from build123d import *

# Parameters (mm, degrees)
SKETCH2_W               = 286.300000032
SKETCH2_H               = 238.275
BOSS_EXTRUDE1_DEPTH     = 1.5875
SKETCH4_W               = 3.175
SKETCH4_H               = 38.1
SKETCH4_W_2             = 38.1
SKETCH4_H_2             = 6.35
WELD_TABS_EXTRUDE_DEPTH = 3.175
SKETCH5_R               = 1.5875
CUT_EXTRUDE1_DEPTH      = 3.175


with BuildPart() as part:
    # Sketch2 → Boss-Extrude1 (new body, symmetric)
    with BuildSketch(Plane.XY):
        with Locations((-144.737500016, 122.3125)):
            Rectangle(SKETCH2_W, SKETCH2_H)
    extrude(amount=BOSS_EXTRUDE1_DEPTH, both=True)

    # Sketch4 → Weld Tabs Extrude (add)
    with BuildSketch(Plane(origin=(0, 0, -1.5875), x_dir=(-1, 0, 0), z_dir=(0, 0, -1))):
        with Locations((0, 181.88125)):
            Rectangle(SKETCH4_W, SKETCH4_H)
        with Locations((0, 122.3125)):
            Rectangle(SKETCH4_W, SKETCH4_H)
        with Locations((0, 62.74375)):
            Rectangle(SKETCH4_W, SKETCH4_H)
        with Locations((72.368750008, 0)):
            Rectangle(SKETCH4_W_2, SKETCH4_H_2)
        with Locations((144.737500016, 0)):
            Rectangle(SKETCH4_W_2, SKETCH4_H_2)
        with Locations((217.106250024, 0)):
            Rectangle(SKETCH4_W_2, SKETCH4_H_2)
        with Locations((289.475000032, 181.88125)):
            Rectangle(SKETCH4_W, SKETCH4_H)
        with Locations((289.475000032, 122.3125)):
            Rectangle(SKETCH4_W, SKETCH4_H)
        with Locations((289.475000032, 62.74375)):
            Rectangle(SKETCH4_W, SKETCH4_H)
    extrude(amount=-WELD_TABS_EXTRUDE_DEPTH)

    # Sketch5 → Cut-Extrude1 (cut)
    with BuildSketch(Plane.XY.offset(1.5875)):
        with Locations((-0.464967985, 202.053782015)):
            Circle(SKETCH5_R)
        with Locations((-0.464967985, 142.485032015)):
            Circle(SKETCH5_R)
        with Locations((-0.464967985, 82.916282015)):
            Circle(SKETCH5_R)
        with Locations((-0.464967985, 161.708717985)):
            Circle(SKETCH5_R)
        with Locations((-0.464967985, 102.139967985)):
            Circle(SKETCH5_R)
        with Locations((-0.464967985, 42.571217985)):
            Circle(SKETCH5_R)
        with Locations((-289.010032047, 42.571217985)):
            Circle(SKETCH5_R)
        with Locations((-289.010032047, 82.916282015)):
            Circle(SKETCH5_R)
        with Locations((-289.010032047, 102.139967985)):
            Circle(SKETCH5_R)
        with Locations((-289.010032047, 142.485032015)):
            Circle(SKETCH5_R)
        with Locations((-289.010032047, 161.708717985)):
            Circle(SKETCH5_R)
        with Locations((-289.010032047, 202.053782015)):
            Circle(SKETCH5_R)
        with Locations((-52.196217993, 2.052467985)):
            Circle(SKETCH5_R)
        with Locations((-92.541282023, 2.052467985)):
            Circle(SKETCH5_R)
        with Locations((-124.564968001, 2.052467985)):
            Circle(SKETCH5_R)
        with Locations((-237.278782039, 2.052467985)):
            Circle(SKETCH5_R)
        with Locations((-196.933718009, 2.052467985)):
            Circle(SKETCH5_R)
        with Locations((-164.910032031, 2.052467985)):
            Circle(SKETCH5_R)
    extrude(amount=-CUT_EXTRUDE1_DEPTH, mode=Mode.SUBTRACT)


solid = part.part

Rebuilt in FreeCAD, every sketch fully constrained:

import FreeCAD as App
import Part
import Sketcher

V = App.Vector
Q = App.Units.Quantity


def add_polygon(sketch, points):
    """Adds a closed chain of lines whose ends are joined by coincident constraints."""
    first, n = sketch.GeometryCount, len(points)
    for a, b in zip(points, points[1:] + points[:1]):
        sketch.addGeometry(Part.LineSegment(App.Vector(*a, 0), App.Vector(*b, 0)), False)
    for i in range(n):
        sketch.addConstraint(Sketcher.Constraint("Coincident", first + i, 2, first + (i + 1) % n, 1))

doc = App.newDocument("Part")
body = doc.addObject("PartDesign::Body", "Body")

# Sketch on XY plane
sketch1 = body.newObject("Sketcher::SketchObject", "Sketch")
sketch1.AttachmentSupport = (doc.getObject("XY_Plane"), [""])
sketch1.MapMode = "FlatFace"
add_polygon(sketch1, [(-288, 241), (-288, 3), (-2, 3), (-2, 241)])  # lines 0-3
sketch1.addConstraint(Sketcher.Constraint("Vertical", 0))
sketch1.addConstraint(Sketcher.Constraint("Horizontal", 1))
sketch1.addConstraint(Sketcher.Constraint("Vertical", 2))
sketch1.addConstraint(Sketcher.Constraint("Horizontal", 3))
sketch1.addConstraint(Sketcher.Constraint("DistanceY", -1, 1, 0, 2, Q("0.125 in")))
sketch1.addConstraint(Sketcher.Constraint("DistanceX", 1, 2, -1, 1, Q("0.0625 in")))
sketch1.addConstraint(Sketcher.Constraint("DistanceX", 1, 1, 1, 2, Q("286.3 mm")))
sketch1.addConstraint(Sketcher.Constraint("DistanceY", 0, 2, 0, 1, Q("238.275 mm")))
pad1 = body.newObject("PartDesign::Pad", "Pad")
pad1.Profile = sketch1
pad1.Length = Q("0.125 in")
pad1.Midplane = True

# Sketch on XY plane
sketch2 = body.newObject("Sketcher::SketchObject", "Sketch001")
sketch2.AttachmentSupport = (doc.getObject("XY_Plane"), [""])
sketch2.MapMode = "FlatFace"
sketch2.AttachmentOffset = App.Placement(V(0, 0, -0.0625 * 25.4), App.Rotation())
add_polygon(sketch2, [(1.6, 200.9), (1.6, 162.8), (-1.6, 162.8), (-1.6, 200.9)])  # lines 0-3
add_polygon(sketch2, [(1.6, 141.4), (1.6, 103.3), (-1.6, 103.3), (-1.6, 141.4)])  # lines 4-7
add_polygon(sketch2, [(1.6, 81.8), (1.6, 43.7), (-1.6, 43.7), (-1.6, 81.8)])  # lines 8-11
add_polygon(sketch2, [(-53.3, 3.2), (-53.3, -3.2), (-91.4, -3.2), (-91.4, 3.2)])  # lines 12-15
add_polygon(sketch2, [(-125.7, 3.2), (-125.7, -3.2), (-163.8, -3.2), (-163.8, 3.2)])  # lines 16-19
add_polygon(sketch2, [(-198.1, 3.2), (-198.1, -3.2), (-236.2, -3.2), (-236.2, 3.2)])  # lines 20-23
add_polygon(sketch2, [(-287.9, 200.9), (-287.9, 162.8), (-291.1, 162.8), (-291.1, 200.9)])  # lines 24-27
add_polygon(sketch2, [(-287.9, 141.4), (-287.9, 103.3), (-291.1, 103.3), (-291.1, 141.4)])  # lines 28-31
add_polygon(sketch2, [(-287.9, 81.8), (-287.9, 43.7), (-291.1, 43.7), (-291.1, 81.8)])  # lines 32-35
sketch2.addConstraint(Sketcher.Constraint("Vertical", 0))
sketch2.addConstraint(Sketcher.Constraint("Horizontal", 1))
sketch2.addConstraint(Sketcher.Constraint("Vertical", 2))
sketch2.addConstraint(Sketcher.Constraint("Horizontal", 3))
sketch2.addConstraint(Sketcher.Constraint("Vertical", 4))
sketch2.addConstraint(Sketcher.Constraint("Horizontal", 5))
sketch2.addConstraint(Sketcher.Constraint("Vertical", 6))
sketch2.addConstraint(Sketcher.Constraint("Horizontal", 7))
sketch2.addConstraint(Sketcher.Constraint("Vertical", 8))
sketch2.addConstraint(Sketcher.Constraint("Horizontal", 9))
sketch2.addConstraint(Sketcher.Constraint("Vertical", 10))
sketch2.addConstraint(Sketcher.Constraint("Horizontal", 11))
sketch2.addConstraint(Sketcher.Constraint("Vertical", 12))
sketch2.addConstraint(Sketcher.Constraint("Horizontal", 13))
sketch2.addConstraint(Sketcher.Constraint("Vertical", 14))
sketch2.addConstraint(Sketcher.Constraint("Horizontal", 15))
sketch2.addConstraint(Sketcher.Constraint("Vertical", 16))
sketch2.addConstraint(Sketcher.Constraint("Horizontal", 17))
sketch2.addConstraint(Sketcher.Constraint("Vertical", 18))
sketch2.addConstraint(Sketcher.Constraint("Horizontal", 19))
sketch2.addConstraint(Sketcher.Constraint("Vertical", 20))
sketch2.addConstraint(Sketcher.Constraint("Horizontal", 21))
sketch2.addConstraint(Sketcher.Constraint("Vertical", 22))
sketch2.addConstraint(Sketcher.Constraint("Horizontal", 23))
sketch2.addConstraint(Sketcher.Constraint("Vertical", 24))
sketch2.addConstraint(Sketcher.Constraint("Horizontal", 25))
sketch2.addConstraint(Sketcher.Constraint("Vertical", 26))
sketch2.addConstraint(Sketcher.Constraint("Horizontal", 27))
sketch2.addConstraint(Sketcher.Constraint("Vertical", 28))
sketch2.addConstraint(Sketcher.Constraint("Horizontal", 29))
sketch2.addConstraint(Sketcher.Constraint("Vertical", 30))
sketch2.addConstraint(Sketcher.Constraint("Horizontal", 31))
sketch2.addConstraint(Sketcher.Constraint("Vertical", 32))
sketch2.addConstraint(Sketcher.Constraint("Horizontal", 33))
sketch2.addConstraint(Sketcher.Constraint("Vertical", 34))
sketch2.addConstraint(Sketcher.Constraint("Horizontal", 35))
sketch2.addConstraint(Sketcher.Constraint("Horizontal", 13, 2, 16, 2))
sketch2.addConstraint(Sketcher.Constraint("Horizontal", 15, 2, 18, 2))
sketch2.addConstraint(Sketcher.Constraint("Horizontal", 17, 2, 20, 2))
sketch2.addConstraint(Sketcher.Constraint("Horizontal", 19, 2, 22, 2))
sketch2.addConstraint(Sketcher.Constraint("Horizontal", 1, 2, 24, 2))
sketch2.addConstraint(Sketcher.Constraint("Horizontal", 3, 2, 26, 2))
sketch2.addConstraint(Sketcher.Constraint("Horizontal", 5, 2, 28, 2))
sketch2.addConstraint(Sketcher.Constraint("Horizontal", 7, 2, 30, 2))
sketch2.addConstraint(Sketcher.Constraint("Horizontal", 9, 2, 32, 2))
sketch2.addConstraint(Sketcher.Constraint("Horizontal", 11, 2, 34, 2))
sketch2.addConstraint(Sketcher.Constraint("Vertical", 3, 2, 4, 2))
sketch2.addConstraint(Sketcher.Constraint("Vertical", 2, 2, 5, 2))
sketch2.addConstraint(Sketcher.Constraint("Vertical", 7, 2, 8, 2))
sketch2.addConstraint(Sketcher.Constraint("Vertical", 6, 2, 9, 2))
sketch2.addConstraint(Sketcher.Constraint("Vertical", 27, 2, 28, 2))
sketch2.addConstraint(Sketcher.Constraint("Vertical", 26, 2, 29, 2))
sketch2.addConstraint(Sketcher.Constraint("Vertical", 31, 2, 32, 2))
sketch2.addConstraint(Sketcher.Constraint("Vertical", 30, 2, 33, 2))
sketch2.addConstraint(Sketcher.Constraint("Equal", 15, 17))
sketch2.addConstraint(Sketcher.Constraint("Equal", 19, 21))
sketch2.addConstraint(Sketcher.Constraint("Equal", 11, 25))
sketch2.addConstraint(Sketcher.Constraint("Equal", 23, 0))
sketch2.addConstraint(Sketcher.Constraint("Equal", 2, 4))
sketch2.addConstraint(Sketcher.Constraint("Equal", 6, 8))
sketch2.addConstraint(Sketcher.Constraint("DistanceX", 13, 2, 13, 1, Q("1.5 in")))
sketch2.addConstraint(Sketcher.Constraint("DistanceY", 12, 2, 12, 1, Q("0.25 in")))
sketch2.addConstraint(Sketcher.Constraint("DistanceX", 1, 2, 1, 1, Q("0.125 in")))
sketch2.addConstraint(Sketcher.Constraint("DistanceX", -1, 1, 0, 2, Q("0.0625 in")))
sketch2.addConstraint(Sketcher.Constraint("DistanceY", 12, 2, -1, 1, Q("0.125 in")))
sketch2.addConstraint(Sketcher.Constraint("DistanceY", -1, 1, 4, 2, Q("103.2625 mm")))
sketch2.addConstraint(Sketcher.Constraint("DistanceX", 16, 2, -1, 1, Q("125.6875 mm")))
sketch2.addConstraint(Sketcher.Constraint("DistanceX", 24, 2, -1, 1, Q("287.8875 mm")))
sketch2.addConstraint(Sketcher.Constraint("DistanceY", 8, 2, 0, 2, Q("119.1375 mm")))
sketch2.addConstraint(Sketcher.Constraint("DistanceX", 20, 2, 13, 2, Q("106.6375 mm")))
sketch2.addConstraint(Sketcher.Constraint("DistanceY", -1, 1, 0, 2, Q("162.83125 mm")))
sketch2.addConstraint(Sketcher.Constraint("DistanceX", 12, 2, -1, 1, Q("53.31875 mm")))
pad2 = body.newObject("PartDesign::Pad", "Pad001")
pad2.Profile = sketch2
pad2.Length = Q("0.125 in")

# Sketch on XY plane
sketch3 = body.newObject("Sketcher::SketchObject", "Sketch002")
sketch3.AttachmentSupport = (doc.getObject("XY_Plane"), [""])
sketch3.MapMode = "FlatFace"
sketch3.AttachmentOffset = App.Placement(V(0, 0, 0.0625 * 25.4), App.Rotation())
sketch3.addGeometry(Part.Circle(V(-0.5, 202.1, 0), V(0, 0, 1), 1.6), False)
sketch3.addGeometry(Part.Circle(V(-0.5, 142.5, 0), V(0, 0, 1), 1.6), False)
sketch3.addGeometry(Part.Circle(V(-0.5, 82.9, 0), V(0, 0, 1), 1.6), False)
sketch3.addGeometry(Part.Circle(V(-0.5, 161.7, 0), V(0, 0, 1), 1.6), False)
sketch3.addGeometry(Part.Circle(V(-0.5, 102.1, 0), V(0, 0, 1), 1.6), False)
sketch3.addGeometry(Part.Circle(V(-0.5, 42.6, 0), V(0, 0, 1), 1.6), False)
sketch3.addGeometry(Part.Circle(V(-289, 42.6, 0), V(0, 0, 1), 1.6), False)
sketch3.addGeometry(Part.Circle(V(-289, 82.9, 0), V(0, 0, 1), 1.6), False)
sketch3.addGeometry(Part.Circle(V(-289, 102.1, 0), V(0, 0, 1), 1.6), False)
sketch3.addGeometry(Part.Circle(V(-289, 142.5, 0), V(0, 0, 1), 1.6), False)
sketch3.addGeometry(Part.Circle(V(-289, 161.7, 0), V(0, 0, 1), 1.6), False)
sketch3.addGeometry(Part.Circle(V(-289, 202.1, 0), V(0, 0, 1), 1.6), False)
sketch3.addGeometry(Part.Circle(V(-52.2, 2.1, 0), V(0, 0, 1), 1.6), False)
sketch3.addGeometry(Part.Circle(V(-92.5, 2.1, 0), V(0, 0, 1), 1.6), False)
sketch3.addGeometry(Part.Circle(V(-124.6, 2.1, 0), V(0, 0, 1), 1.6), False)
sketch3.addGeometry(Part.Circle(V(-237.3, 2.1, 0), V(0, 0, 1), 1.6), False)
sketch3.addGeometry(Part.Circle(V(-196.9, 2.1, 0), V(0, 0, 1), 1.6), False)
sketch3.addGeometry(Part.Circle(V(-164.9, 2.1, 0), V(0, 0, 1), 1.6), False)
sketch3.addConstraint(Sketcher.Constraint("Equal", 0, 1))
sketch3.addConstraint(Sketcher.Constraint("Equal", 1, 2))
sketch3.addConstraint(Sketcher.Constraint("Equal", 2, 3))
sketch3.addConstraint(Sketcher.Constraint("Equal", 3, 4))
sketch3.addConstraint(Sketcher.Constraint("Equal", 4, 5))
sketch3.addConstraint(Sketcher.Constraint("Equal", 5, 6))
sketch3.addConstraint(Sketcher.Constraint("Equal", 6, 7))
sketch3.addConstraint(Sketcher.Constraint("Equal", 7, 8))
sketch3.addConstraint(Sketcher.Constraint("Equal", 8, 9))
sketch3.addConstraint(Sketcher.Constraint("Equal", 9, 10))
sketch3.addConstraint(Sketcher.Constraint("Equal", 10, 11))
sketch3.addConstraint(Sketcher.Constraint("Equal", 11, 12))
sketch3.addConstraint(Sketcher.Constraint("Equal", 12, 13))
sketch3.addConstraint(Sketcher.Constraint("Equal", 13, 14))
sketch3.addConstraint(Sketcher.Constraint("Equal", 14, 15))
sketch3.addConstraint(Sketcher.Constraint("Equal", 15, 16))
sketch3.addConstraint(Sketcher.Constraint("Equal", 16, 17))
sketch3.addConstraint(Sketcher.Constraint("Horizontal", 5, 3, 6, 3))
sketch3.addConstraint(Sketcher.Constraint("Horizontal", 2, 3, 7, 3))
sketch3.addConstraint(Sketcher.Constraint("Horizontal", 4, 3, 8, 3))
sketch3.addConstraint(Sketcher.Constraint("Horizontal", 1, 3, 9, 3))
sketch3.addConstraint(Sketcher.Constraint("Horizontal", 3, 3, 10, 3))
sketch3.addConstraint(Sketcher.Constraint("Horizontal", 0, 3, 11, 3))
sketch3.addConstraint(Sketcher.Constraint("Horizontal", 12, 3, 13, 3))
sketch3.addConstraint(Sketcher.Constraint("Horizontal", 13, 3, 14, 3))
sketch3.addConstraint(Sketcher.Constraint("Horizontal", 14, 3, 15, 3))
sketch3.addConstraint(Sketcher.Constraint("Horizontal", 15, 3, 16, 3))
sketch3.addConstraint(Sketcher.Constraint("Horizontal", 16, 3, 17, 3))
sketch3.addConstraint(Sketcher.Constraint("Vertical", 0, 3, 1, 3))
sketch3.addConstraint(Sketcher.Constraint("Vertical", 1, 3, 2, 3))
sketch3.addConstraint(Sketcher.Constraint("Vertical", 2, 3, 3, 3))
sketch3.addConstraint(Sketcher.Constraint("Vertical", 3, 3, 4, 3))
sketch3.addConstraint(Sketcher.Constraint("Vertical", 4, 3, 5, 3))
sketch3.addConstraint(Sketcher.Constraint("Vertical", 6, 3, 7, 3))
sketch3.addConstraint(Sketcher.Constraint("Vertical", 7, 3, 8, 3))
sketch3.addConstraint(Sketcher.Constraint("Vertical", 8, 3, 9, 3))
sketch3.addConstraint(Sketcher.Constraint("Vertical", 9, 3, 10, 3))
sketch3.addConstraint(Sketcher.Constraint("Vertical", 10, 3, 11, 3))
sketch3.addConstraint(Sketcher.Constraint("Diameter", 0, Q("0.125 in")))
sketch3.addConstraint(Sketcher.Constraint("DistanceY", 2, 3, 0, 3, Q("119.1375 mm")))
sketch3.addConstraint(Sketcher.Constraint("DistanceY", 5, 3, 3, 3, Q("119.1375 mm")))
sketch3.addConstraint(Sketcher.Constraint("DistanceY", 12, 3, 4, 3, Q("100.0875 mm")))
sketch3.addConstraint(Sketcher.Constraint("DistanceX", 14, 3, 5, 3, Q("124.1 mm")))
sketch3.addConstraint(Sketcher.Constraint("DistanceX", 15, 3, 13, 3, Q("144.7375 mm")))
sketch3.addConstraint(Sketcher.Constraint("DistanceX", 14, 3, -1, 1, Q("124.564968 mm")))
sketch3.addConstraint(Sketcher.Constraint("DistanceX", 16, 3, -1, 1, Q("196.933718 mm")))
sketch3.addConstraint(Sketcher.Constraint("DistanceY", 1, 3, 0, 3, Q("59.56875 mm")))
sketch3.addConstraint(Sketcher.Constraint("DistanceY", 4, 3, 3, 3, Q("59.56875 mm")))
sketch3.addConstraint(Sketcher.Constraint("DistanceX", 12, 3, 5, 3, Q("51.73125 mm")))
sketch3.addConstraint(Sketcher.Constraint("DistanceX", 6, 3, 15, 3, Q("51.73125 mm")))
sketch3.addConstraint(Sketcher.Constraint("DistanceX", 17, 3, 13, 3, Q("72.36875 mm")))
sketch3.addConstraint(Sketcher.Constraint("DistanceY", -1, 1, 0, 3, Q("202.053782 mm")))
sketch3.addConstraint(Sketcher.Constraint("DistanceY", -1, 1, 3, 3, Q("161.708718 mm")))
sketch3.addConstraint(Sketcher.Constraint("DistanceX", 6, 3, -1, 1, Q("289.010032 mm")))
pocket1 = body.newObject("PartDesign::Pocket", "Pocket")
pocket1.Profile = sketch3
pocket1.Length = Q("0.125 in")

doc.recompute()
